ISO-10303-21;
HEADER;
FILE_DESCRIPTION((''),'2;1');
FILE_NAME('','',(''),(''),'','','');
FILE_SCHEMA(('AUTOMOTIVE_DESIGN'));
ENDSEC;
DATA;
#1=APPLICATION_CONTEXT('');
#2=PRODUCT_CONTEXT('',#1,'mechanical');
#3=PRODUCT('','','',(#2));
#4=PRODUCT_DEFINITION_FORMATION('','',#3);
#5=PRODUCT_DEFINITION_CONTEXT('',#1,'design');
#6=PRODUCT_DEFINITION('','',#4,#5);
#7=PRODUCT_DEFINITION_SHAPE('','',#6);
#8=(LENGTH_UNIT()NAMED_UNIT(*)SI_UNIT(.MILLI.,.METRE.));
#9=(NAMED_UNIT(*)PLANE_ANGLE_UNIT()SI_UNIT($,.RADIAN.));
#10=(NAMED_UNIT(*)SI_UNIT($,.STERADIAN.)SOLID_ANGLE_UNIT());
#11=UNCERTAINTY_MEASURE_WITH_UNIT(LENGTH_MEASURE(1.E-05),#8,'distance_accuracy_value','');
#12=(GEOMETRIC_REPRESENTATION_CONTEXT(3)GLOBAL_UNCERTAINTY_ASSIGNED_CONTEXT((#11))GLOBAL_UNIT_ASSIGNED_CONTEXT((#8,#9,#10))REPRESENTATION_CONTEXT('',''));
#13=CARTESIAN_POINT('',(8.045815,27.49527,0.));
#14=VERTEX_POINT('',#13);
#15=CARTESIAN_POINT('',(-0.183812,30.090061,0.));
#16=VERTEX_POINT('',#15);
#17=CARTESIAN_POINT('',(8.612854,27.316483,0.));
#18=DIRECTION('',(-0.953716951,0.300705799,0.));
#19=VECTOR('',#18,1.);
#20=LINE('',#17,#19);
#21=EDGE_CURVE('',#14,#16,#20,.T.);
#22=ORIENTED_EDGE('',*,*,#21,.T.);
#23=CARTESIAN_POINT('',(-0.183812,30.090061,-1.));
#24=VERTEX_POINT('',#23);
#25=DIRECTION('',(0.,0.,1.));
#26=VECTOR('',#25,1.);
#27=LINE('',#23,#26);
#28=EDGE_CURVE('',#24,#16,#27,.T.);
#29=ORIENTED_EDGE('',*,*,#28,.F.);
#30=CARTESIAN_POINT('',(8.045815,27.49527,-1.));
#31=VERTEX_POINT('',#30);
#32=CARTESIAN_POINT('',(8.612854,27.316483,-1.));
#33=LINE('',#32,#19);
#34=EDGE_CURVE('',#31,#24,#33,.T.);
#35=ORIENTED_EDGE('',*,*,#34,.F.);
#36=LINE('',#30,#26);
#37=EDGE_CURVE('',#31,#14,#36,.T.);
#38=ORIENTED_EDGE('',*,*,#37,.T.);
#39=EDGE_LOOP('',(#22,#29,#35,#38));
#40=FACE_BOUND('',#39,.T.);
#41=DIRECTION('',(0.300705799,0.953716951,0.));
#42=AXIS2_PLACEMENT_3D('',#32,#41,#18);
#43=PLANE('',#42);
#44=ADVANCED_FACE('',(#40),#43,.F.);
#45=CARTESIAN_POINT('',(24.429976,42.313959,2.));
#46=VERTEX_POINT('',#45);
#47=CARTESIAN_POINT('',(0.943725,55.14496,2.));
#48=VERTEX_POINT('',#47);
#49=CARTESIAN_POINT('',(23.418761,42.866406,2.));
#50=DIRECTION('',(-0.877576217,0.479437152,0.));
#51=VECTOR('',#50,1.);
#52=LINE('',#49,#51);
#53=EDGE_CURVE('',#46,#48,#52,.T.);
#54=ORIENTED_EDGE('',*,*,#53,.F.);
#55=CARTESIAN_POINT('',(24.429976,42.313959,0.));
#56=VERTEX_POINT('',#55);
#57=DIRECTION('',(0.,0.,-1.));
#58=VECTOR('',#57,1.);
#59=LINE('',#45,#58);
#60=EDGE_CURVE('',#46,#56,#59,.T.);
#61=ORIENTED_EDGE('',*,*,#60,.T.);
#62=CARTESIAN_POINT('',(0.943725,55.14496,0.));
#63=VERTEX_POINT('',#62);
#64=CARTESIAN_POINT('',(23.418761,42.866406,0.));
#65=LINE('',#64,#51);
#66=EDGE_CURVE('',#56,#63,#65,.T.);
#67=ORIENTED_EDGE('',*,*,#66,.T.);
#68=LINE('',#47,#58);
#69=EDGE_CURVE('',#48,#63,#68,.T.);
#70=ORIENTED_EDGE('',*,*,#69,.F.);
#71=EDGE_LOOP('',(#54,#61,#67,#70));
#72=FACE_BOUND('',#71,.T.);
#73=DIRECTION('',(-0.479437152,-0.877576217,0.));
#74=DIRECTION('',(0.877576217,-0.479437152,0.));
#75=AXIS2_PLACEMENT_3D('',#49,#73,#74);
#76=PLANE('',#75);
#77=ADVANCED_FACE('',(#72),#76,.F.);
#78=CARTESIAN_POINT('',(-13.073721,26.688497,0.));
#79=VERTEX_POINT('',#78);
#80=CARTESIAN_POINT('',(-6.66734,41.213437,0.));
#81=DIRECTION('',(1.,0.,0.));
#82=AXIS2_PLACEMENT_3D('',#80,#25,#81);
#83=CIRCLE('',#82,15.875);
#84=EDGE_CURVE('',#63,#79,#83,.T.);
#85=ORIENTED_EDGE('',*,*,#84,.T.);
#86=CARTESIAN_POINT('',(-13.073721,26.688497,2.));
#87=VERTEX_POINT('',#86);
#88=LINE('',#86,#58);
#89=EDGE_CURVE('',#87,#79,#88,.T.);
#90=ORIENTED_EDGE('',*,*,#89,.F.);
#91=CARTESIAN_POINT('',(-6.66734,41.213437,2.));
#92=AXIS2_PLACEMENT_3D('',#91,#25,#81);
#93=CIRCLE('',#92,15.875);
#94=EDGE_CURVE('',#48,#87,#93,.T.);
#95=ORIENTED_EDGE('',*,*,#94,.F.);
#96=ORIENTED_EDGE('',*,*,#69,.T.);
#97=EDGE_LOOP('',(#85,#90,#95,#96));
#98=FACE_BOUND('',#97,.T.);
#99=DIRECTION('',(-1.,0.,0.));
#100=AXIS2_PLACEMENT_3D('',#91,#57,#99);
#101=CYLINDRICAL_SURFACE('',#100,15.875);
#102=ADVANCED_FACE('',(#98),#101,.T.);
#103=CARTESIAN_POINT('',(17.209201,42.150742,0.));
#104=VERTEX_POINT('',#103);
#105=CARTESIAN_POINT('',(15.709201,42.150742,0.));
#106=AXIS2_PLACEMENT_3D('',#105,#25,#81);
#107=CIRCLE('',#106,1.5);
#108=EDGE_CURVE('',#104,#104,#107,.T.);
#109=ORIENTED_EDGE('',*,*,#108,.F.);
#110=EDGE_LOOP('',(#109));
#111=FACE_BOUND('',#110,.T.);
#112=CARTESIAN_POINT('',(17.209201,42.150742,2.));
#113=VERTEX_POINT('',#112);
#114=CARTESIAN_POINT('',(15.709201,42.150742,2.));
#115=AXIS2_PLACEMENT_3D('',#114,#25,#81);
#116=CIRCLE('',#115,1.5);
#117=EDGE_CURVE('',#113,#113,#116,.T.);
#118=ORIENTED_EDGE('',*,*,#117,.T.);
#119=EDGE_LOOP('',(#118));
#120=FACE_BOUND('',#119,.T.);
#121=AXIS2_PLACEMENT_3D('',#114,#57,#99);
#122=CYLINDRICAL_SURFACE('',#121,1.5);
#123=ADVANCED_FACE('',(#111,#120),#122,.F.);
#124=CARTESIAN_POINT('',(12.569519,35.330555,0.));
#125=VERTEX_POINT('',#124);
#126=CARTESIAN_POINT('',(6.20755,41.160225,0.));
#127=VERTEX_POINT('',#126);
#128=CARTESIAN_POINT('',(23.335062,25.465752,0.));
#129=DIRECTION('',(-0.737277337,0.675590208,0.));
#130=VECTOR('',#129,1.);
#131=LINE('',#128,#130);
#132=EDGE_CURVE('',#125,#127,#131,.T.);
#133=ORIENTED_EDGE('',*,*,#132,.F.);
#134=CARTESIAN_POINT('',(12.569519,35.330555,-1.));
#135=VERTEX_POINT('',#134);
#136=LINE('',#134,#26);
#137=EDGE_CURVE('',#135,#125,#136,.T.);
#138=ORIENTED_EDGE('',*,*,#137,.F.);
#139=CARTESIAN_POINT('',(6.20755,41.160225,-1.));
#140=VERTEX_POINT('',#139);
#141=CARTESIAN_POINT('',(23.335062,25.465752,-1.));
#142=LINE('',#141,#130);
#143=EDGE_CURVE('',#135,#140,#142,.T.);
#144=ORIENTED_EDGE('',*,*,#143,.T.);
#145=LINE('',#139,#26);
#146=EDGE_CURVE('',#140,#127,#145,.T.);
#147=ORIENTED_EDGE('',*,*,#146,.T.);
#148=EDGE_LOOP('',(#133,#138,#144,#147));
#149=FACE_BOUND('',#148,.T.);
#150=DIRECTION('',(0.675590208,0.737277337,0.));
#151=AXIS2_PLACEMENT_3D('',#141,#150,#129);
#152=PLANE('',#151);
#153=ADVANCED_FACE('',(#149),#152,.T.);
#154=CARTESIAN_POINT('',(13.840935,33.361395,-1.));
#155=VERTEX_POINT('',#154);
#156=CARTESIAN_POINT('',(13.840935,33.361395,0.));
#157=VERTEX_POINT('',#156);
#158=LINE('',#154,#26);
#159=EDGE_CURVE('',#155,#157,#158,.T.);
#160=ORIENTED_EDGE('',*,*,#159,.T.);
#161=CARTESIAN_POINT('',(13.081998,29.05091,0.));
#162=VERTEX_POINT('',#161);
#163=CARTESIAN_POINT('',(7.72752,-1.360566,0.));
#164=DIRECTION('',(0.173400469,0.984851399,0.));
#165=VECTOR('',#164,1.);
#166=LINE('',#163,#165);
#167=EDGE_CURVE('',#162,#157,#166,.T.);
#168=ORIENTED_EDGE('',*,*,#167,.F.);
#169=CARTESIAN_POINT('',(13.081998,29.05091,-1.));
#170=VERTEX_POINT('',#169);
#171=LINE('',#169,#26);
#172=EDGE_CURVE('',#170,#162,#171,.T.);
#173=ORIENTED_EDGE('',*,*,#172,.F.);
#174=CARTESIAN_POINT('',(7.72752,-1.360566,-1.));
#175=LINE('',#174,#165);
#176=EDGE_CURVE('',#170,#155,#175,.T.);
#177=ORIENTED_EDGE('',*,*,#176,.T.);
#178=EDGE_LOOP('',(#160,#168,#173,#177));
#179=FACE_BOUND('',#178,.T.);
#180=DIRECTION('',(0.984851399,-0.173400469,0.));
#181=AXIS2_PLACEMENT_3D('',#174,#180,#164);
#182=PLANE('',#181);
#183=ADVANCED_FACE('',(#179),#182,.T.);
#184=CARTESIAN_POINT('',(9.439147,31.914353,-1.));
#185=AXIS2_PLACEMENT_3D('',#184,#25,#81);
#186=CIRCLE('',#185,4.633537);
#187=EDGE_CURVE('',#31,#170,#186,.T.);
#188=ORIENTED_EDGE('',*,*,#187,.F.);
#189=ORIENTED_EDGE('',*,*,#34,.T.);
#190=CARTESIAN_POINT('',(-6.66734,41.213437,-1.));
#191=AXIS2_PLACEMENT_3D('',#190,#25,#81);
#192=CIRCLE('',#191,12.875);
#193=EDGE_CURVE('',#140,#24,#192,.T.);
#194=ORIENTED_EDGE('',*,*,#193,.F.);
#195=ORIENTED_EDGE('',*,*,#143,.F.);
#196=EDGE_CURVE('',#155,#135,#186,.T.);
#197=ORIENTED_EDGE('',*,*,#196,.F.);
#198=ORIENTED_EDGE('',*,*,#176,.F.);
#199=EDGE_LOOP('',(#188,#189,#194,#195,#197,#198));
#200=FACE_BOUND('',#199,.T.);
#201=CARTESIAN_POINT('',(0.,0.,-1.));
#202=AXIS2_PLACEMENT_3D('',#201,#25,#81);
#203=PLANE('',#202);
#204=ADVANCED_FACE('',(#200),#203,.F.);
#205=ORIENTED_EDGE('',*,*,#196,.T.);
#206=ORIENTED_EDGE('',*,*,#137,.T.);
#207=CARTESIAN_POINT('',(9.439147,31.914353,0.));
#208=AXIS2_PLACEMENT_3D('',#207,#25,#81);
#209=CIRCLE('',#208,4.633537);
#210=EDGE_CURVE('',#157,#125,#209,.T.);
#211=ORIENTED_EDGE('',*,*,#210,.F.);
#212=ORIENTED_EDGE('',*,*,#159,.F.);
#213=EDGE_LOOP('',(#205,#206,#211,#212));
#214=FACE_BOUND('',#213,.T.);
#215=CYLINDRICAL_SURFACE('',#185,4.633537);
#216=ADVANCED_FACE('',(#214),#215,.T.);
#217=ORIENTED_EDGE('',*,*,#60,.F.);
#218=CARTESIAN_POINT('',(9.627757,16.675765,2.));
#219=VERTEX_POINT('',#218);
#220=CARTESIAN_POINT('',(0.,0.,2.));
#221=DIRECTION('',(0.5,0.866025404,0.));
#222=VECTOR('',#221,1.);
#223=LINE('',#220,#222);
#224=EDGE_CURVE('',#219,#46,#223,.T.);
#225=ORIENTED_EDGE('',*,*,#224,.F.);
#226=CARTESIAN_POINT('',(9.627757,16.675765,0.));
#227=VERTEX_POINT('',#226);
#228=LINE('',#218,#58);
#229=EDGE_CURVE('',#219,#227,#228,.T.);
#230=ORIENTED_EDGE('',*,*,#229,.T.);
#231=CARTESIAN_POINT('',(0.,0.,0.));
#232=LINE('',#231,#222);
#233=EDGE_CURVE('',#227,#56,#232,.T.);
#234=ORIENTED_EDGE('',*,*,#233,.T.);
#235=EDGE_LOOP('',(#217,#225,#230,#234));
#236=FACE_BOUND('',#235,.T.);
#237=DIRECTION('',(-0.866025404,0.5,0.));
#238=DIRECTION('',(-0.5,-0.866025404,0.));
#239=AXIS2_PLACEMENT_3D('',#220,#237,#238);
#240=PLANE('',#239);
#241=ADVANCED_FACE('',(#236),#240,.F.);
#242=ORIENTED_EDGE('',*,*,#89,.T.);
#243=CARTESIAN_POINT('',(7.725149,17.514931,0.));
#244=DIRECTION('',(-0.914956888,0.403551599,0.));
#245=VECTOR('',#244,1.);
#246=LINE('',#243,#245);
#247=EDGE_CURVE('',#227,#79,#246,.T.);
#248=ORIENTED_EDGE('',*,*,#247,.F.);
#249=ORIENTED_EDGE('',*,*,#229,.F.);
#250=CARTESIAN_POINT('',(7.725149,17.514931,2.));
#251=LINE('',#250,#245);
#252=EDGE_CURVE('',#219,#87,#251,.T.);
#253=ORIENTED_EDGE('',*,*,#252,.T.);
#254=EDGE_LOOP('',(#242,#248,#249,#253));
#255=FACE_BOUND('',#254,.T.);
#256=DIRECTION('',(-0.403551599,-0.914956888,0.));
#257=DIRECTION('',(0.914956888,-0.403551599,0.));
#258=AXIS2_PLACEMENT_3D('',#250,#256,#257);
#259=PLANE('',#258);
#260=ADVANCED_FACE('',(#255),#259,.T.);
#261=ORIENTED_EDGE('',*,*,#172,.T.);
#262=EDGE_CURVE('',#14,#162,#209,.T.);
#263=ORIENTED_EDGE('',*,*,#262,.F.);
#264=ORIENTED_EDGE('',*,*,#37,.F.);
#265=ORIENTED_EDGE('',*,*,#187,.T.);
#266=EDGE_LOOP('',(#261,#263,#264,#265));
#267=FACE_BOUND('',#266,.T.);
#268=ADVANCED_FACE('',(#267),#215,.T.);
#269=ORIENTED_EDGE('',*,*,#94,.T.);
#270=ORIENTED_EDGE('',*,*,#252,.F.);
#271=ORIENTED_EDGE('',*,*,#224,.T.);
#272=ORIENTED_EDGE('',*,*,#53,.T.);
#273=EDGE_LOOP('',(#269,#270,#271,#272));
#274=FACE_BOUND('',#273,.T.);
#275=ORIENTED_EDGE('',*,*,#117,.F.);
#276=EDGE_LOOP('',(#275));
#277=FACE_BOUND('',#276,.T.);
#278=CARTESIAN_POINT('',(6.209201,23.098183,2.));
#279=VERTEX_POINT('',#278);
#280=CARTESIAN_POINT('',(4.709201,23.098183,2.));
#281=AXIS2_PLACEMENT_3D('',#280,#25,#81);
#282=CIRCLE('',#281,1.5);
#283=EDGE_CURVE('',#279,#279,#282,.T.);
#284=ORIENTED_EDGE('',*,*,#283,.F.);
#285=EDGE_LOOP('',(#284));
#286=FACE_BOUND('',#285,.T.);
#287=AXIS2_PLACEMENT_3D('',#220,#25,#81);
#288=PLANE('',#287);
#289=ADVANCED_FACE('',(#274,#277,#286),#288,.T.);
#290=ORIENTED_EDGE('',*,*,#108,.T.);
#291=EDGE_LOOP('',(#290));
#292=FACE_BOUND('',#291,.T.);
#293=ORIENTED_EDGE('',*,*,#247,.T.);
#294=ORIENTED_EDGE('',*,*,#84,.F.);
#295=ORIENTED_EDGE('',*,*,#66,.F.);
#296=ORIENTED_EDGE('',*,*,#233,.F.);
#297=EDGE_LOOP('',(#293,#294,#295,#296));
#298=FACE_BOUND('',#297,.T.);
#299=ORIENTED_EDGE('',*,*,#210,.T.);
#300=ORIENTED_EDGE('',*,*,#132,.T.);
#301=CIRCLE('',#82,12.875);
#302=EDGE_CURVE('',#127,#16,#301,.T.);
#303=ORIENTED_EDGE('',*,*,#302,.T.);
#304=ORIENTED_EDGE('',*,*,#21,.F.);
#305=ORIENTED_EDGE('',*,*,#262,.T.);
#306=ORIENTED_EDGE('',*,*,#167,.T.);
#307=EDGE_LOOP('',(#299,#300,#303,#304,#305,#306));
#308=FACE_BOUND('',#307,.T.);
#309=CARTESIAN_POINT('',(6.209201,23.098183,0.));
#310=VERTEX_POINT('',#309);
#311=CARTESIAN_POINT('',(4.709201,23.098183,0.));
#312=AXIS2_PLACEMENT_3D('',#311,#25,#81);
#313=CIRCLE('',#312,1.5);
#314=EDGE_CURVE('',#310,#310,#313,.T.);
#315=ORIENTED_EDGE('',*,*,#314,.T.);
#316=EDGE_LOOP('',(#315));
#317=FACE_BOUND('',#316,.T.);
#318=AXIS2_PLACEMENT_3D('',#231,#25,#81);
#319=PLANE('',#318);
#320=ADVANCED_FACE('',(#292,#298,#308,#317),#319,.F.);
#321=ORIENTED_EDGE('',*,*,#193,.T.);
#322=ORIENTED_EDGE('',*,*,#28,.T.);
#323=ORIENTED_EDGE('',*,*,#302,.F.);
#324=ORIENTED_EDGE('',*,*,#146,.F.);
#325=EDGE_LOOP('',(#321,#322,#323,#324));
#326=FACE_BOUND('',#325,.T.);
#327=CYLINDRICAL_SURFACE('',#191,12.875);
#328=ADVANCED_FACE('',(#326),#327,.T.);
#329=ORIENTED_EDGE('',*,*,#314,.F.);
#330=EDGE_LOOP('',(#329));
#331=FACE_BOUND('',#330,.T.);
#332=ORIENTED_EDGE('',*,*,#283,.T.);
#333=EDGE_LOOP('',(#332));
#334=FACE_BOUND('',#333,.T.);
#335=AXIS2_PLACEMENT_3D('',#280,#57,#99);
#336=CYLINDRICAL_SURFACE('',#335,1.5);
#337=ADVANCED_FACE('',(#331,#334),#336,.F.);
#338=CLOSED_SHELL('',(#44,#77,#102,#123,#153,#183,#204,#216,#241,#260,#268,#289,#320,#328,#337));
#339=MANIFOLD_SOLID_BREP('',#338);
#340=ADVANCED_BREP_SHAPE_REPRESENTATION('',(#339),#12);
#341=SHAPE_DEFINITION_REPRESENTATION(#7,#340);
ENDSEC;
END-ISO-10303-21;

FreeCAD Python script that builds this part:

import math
import FreeCAD as App
import Part
import Sketcher
Q = App.Units.Quantity

doc = App.newDocument("Part")
params = doc.addObject("Spreadsheet::Sheet", "Params")
for row, (alias, value) in enumerate([
    ("pad1_length", "1 mm"),
    ("sketch2_diameter", "3 mm"),
    ("sketch2_length", "5 mm"),
    ("pad2_length", "2 mm"),
], start=1):
    params.set(f"A{row}", alias)
    params.set(f"B{row}", "=" + value)
    params.setAlias(f"B{row}", alias)

body = doc.addObject("PartDesign::Body", "Body")

sketch1 = body.newObject("Sketcher::SketchObject", "Sketch")
sketch1.AttachmentSupport = (doc.getObject("XY_Plane"), [""])
sketch1.MapMode = "FlatFace"
sketch1.addGeometry([
    Part.LineSegment(App.Vector(-0.183812, 30.090061, 0), App.Vector(8.045815, 27.49527, 0)),
    Part.ArcOfCircle(Part.Circle(App.Vector(9.439147, 31.914353, 0), App.Vector(0, 0, 1), 4.633537), math.radians(-107.5), math.radians(-38.168923)),
    Part.LineSegment(App.Vector(13.081998, 29.05091, 0), App.Vector(13.840935, 33.361395, 0)),
    Part.ArcOfCircle(Part.Circle(App.Vector(9.439147, 31.914353, 0), App.Vector(0, 0, 1), 4.633537), math.radians(18.197745), math.radians(47.5)),
    Part.LineSegment(App.Vector(12.569519, 35.330555, 0), App.Vector(6.20755, 41.160225, 0)),
    Part.ArcOfCircle(Part.Circle(App.Vector(-6.66734, 41.213437, 0), App.Vector(0, 0, 1), 12.875), math.radians(-0.236802), math.radians(300.236802)),
], False)
sketch1.addConstraint([
    Sketcher.Constraint("Tangent", 0, 2, 1, 1),
    Sketcher.Constraint("Coincident", 1, 2, 2, 1),
    Sketcher.Constraint("Coincident", 2, 2, 3, 1),
    Sketcher.Constraint("Tangent", 3, 2, 4, 1),
    Sketcher.Constraint("Coincident", 4, 2, 5, 1),
    Sketcher.Constraint("Coincident", 5, 2, 0, 1),
    Sketcher.Constraint("Coincident", 3, 3, 1, 3),
    Sketcher.Constraint("Equal", 1, 3),
    Sketcher.Constraint("Equal", 0, 4),
    Sketcher.Constraint("Angle", 0, Q("-17.5 deg")),
    Sketcher.Constraint("Angle", 4, Q("137.5 deg")),
    Sketcher.Constraint("Radius", 5, 12.875),
    Sketcher.Constraint("Radius", 1, 4.633537),
    Sketcher.Constraint("DistanceX", 5, 3, -1, 1, 6.66734),
    Sketcher.Constraint("DistanceY", -1, 1, 0, 2, 27.49527),
    Sketcher.Constraint("DistanceY", -1, 1, 1, 2, 29.05091),
    Sketcher.Constraint("DistanceX", -1, 1, 3, 2, 12.569519),
    Sketcher.Constraint("DistanceX", 0, 2, 2, 2, 5.795119),
])
pad1 = body.newObject("PartDesign::Pad", "Pad")
pad1.Profile = sketch1
pad1.setExpression("Length", "Params.pad1_length")
pad1.Reversed = True

sketch2 = body.newObject("Sketcher::SketchObject", "Sketch001")
sketch2.AttachmentSupport = (doc.getObject("XY_Plane"), [""])
sketch2.MapMode = "FlatFace"
sketch2.addGeometry([
    Part.LineSegment(App.Vector(15.778866, 27.329798, 0), App.Vector(18.278866, 31.659925, 0)),
    Part.LineSegment(App.Vector(18.278866, 31.659925, 0), App.Vector(24.429976, 42.313959, 0)),
    Part.LineSegment(App.Vector(24.429976, 42.313959, 0), App.Vector(0.943725, 55.14496, 0)),
    Part.ArcOfCircle(Part.Circle(App.Vector(-6.66734, 41.213437, 0), App.Vector(0, 0, 1), 15.875), math.radians(61.351352), math.radians(246.199605)),
    Part.LineSegment(App.Vector(-13.073721, 26.688497, 0), App.Vector(9.627757, 16.675765, 0)),
    Part.LineSegment(App.Vector(9.627757, 16.675765, 0), App.Vector(15.778866, 27.329798, 0)),
    Part.Circle(App.Vector(4.709201, 23.098183, 0), App.Vector(0, 0, 1), 1.5),
    Part.Circle(App.Vector(15.709201, 42.150742, 0), App.Vector(0, 0, 1), 1.5),
], False)
sketch2.addConstraint([
    Sketcher.Constraint("Coincident", 0, 2, 1, 1),
    Sketcher.Constraint("Coincident", 1, 2, 2, 1),
    Sketcher.Constraint("Tangent", 2, 2, 3, 1),
    Sketcher.Constraint("Tangent", 3, 2, 4, 1),
    Sketcher.Constraint("Coincident", 4, 2, 5, 1),
    Sketcher.Constraint("Coincident", 5, 2, 0, 1),
    Sketcher.Constraint("Equal", 6, 7),
    Sketcher.Constraint("Parallel", 0, 1),
    Sketcher.Constraint("Parallel", 1, 5),
    Sketcher.Constraint("Equal", 1, 5),
    Sketcher.Constraint("Diameter", 6, 3.0),
    Sketcher.Constraint("Angle", 0, Q("60 deg")),
    Sketcher.Constraint("Distance", 0, 5.0),
    Sketcher.Constraint("Radius", 3, 15.875),
    Sketcher.Constraint("DistanceX", 6, 3, 7, 3, 11.0),
    Sketcher.Constraint("DistanceY", 1, 2, 2, 2, 12.831001),
    Sketcher.Constraint("DistanceX", -1, 1, 6, 3, 4.709201),
    Sketcher.Constraint("DistanceY", -1, 1, 5, 2, 27.329798),
    Sketcher.Constraint("Distance", 1, 12.302218),
    Sketcher.Constraint("Distance", 4, 24.811528),
    Sketcher.Constraint("DistanceX", 3, 3, -1, 1, 6.66734),
    Sketcher.Constraint("DistanceY", 6, 3, 7, 3, 19.052559),
    Sketcher.Constraint("DistanceY", 4, 2, 6, 3, 6.422418),
])
sketch2.setExpression("Constraints[10]", "Params.sketch2_diameter")
sketch2.setExpression("Constraints[12]", "Params.sketch2_length")
pad2 = body.newObject("PartDesign::Pad", "Pad001")
pad2.Profile = sketch2
pad2.setExpression("Length", "Params.pad2_length")

doc.recompute()
